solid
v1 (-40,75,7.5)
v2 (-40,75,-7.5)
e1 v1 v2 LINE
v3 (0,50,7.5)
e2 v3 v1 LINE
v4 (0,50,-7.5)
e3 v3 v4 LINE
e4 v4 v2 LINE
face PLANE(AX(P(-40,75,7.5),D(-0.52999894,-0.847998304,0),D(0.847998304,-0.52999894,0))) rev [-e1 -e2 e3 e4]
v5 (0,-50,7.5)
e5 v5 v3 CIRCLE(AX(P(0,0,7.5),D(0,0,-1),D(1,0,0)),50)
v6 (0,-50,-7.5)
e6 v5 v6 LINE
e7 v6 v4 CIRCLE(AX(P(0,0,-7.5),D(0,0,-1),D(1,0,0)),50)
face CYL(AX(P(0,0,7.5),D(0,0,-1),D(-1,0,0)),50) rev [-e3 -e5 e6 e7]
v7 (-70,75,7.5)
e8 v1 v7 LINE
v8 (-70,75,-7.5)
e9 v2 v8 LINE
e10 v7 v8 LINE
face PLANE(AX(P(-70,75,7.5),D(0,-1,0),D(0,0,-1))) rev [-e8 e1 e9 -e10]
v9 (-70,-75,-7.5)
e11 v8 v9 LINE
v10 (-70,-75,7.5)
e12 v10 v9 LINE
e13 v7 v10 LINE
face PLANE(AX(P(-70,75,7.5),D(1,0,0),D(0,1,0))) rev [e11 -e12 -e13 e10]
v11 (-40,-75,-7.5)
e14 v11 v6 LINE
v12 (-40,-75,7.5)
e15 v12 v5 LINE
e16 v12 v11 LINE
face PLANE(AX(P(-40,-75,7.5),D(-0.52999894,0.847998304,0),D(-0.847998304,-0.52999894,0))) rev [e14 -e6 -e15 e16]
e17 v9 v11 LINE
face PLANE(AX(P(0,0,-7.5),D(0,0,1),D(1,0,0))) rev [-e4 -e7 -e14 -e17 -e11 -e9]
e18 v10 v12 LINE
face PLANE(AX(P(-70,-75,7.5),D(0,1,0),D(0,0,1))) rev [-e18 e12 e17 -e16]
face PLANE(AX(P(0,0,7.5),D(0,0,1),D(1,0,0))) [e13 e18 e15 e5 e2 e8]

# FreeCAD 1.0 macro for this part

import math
import FreeCAD as App
import Part
import Sketcher
from FreeCAD import Vector
Q = App.Units.Quantity

doc = App.newDocument("Part")
body = doc.addObject("PartDesign::Body", "Body")

sketch1 = body.newObject("Sketcher::SketchObject", "Sketch")
sketch1.AttachmentSupport = (doc.getObject("XY_Plane"), [""])
sketch1.MapMode = "FlatFace"
sketch1.addGeometry([
    Part.LineSegment(Vector(-40, 75, 0), Vector(-70, 75, 0)),
    Part.LineSegment(Vector(-70, 75, 0), Vector(-70, -75, 0)),
    Part.LineSegment(Vector(-70, -75, 0), Vector(-40, -75, 0)),
    Part.LineSegment(Vector(-40, -75, 0), Vector(0, -50, 0)),
    Part.ArcOfCircle(Part.Circle(Vector(0, 0, 0), Vector(0, 0, 1), 50), math.radians(90), math.radians(270)),
    Part.LineSegment(Vector(0, 50, 0), Vector(-40, 75, 0)),
], False)
sketch1.addConstraint([
    Sketcher.Constraint("Coincident", 0, 2, 1, 1),
    Sketcher.Constraint("Coincident", 1, 2, 2, 1),
    Sketcher.Constraint("Coincident", 2, 2, 3, 1),
    Sketcher.Constraint("Coincident", 3, 2, 4, 2),
    Sketcher.Constraint("Coincident", 4, 1, 5, 1),
    Sketcher.Constraint("Coincident", 5, 2, 0, 1),
    Sketcher.Constraint("Horizontal", 0),
    Sketcher.Constraint("Vertical", 1),
    Sketcher.Constraint("Horizontal", 2),
    Sketcher.Constraint("Coincident", 4, 3, -1, 1),
    Sketcher.Constraint("Symmetric", 2, 2, 5, 2, -1),
    Sketcher.Constraint("PointOnObject", 3, 2, -2),
    Sketcher.Constraint("PointOnObject", 4, 1, -2),
    Sketcher.Constraint("Radius", 4, Q("50 mm")),
    Sketcher.Constraint("DistanceX", 0, 2, 0, 1, Q("30 mm")),
    Sketcher.Constraint("DistanceY", 1, 2, 1, 1, Q("150 mm")),
    Sketcher.Constraint("DistanceX", 0, 2, -1, 1, Q("70 mm")),
])
pad1 = body.newObject("PartDesign::Pad", "Pad")
pad1.Profile = sketch1
pad1.Length = 15
pad1.Midplane = True

doc.recompute()
